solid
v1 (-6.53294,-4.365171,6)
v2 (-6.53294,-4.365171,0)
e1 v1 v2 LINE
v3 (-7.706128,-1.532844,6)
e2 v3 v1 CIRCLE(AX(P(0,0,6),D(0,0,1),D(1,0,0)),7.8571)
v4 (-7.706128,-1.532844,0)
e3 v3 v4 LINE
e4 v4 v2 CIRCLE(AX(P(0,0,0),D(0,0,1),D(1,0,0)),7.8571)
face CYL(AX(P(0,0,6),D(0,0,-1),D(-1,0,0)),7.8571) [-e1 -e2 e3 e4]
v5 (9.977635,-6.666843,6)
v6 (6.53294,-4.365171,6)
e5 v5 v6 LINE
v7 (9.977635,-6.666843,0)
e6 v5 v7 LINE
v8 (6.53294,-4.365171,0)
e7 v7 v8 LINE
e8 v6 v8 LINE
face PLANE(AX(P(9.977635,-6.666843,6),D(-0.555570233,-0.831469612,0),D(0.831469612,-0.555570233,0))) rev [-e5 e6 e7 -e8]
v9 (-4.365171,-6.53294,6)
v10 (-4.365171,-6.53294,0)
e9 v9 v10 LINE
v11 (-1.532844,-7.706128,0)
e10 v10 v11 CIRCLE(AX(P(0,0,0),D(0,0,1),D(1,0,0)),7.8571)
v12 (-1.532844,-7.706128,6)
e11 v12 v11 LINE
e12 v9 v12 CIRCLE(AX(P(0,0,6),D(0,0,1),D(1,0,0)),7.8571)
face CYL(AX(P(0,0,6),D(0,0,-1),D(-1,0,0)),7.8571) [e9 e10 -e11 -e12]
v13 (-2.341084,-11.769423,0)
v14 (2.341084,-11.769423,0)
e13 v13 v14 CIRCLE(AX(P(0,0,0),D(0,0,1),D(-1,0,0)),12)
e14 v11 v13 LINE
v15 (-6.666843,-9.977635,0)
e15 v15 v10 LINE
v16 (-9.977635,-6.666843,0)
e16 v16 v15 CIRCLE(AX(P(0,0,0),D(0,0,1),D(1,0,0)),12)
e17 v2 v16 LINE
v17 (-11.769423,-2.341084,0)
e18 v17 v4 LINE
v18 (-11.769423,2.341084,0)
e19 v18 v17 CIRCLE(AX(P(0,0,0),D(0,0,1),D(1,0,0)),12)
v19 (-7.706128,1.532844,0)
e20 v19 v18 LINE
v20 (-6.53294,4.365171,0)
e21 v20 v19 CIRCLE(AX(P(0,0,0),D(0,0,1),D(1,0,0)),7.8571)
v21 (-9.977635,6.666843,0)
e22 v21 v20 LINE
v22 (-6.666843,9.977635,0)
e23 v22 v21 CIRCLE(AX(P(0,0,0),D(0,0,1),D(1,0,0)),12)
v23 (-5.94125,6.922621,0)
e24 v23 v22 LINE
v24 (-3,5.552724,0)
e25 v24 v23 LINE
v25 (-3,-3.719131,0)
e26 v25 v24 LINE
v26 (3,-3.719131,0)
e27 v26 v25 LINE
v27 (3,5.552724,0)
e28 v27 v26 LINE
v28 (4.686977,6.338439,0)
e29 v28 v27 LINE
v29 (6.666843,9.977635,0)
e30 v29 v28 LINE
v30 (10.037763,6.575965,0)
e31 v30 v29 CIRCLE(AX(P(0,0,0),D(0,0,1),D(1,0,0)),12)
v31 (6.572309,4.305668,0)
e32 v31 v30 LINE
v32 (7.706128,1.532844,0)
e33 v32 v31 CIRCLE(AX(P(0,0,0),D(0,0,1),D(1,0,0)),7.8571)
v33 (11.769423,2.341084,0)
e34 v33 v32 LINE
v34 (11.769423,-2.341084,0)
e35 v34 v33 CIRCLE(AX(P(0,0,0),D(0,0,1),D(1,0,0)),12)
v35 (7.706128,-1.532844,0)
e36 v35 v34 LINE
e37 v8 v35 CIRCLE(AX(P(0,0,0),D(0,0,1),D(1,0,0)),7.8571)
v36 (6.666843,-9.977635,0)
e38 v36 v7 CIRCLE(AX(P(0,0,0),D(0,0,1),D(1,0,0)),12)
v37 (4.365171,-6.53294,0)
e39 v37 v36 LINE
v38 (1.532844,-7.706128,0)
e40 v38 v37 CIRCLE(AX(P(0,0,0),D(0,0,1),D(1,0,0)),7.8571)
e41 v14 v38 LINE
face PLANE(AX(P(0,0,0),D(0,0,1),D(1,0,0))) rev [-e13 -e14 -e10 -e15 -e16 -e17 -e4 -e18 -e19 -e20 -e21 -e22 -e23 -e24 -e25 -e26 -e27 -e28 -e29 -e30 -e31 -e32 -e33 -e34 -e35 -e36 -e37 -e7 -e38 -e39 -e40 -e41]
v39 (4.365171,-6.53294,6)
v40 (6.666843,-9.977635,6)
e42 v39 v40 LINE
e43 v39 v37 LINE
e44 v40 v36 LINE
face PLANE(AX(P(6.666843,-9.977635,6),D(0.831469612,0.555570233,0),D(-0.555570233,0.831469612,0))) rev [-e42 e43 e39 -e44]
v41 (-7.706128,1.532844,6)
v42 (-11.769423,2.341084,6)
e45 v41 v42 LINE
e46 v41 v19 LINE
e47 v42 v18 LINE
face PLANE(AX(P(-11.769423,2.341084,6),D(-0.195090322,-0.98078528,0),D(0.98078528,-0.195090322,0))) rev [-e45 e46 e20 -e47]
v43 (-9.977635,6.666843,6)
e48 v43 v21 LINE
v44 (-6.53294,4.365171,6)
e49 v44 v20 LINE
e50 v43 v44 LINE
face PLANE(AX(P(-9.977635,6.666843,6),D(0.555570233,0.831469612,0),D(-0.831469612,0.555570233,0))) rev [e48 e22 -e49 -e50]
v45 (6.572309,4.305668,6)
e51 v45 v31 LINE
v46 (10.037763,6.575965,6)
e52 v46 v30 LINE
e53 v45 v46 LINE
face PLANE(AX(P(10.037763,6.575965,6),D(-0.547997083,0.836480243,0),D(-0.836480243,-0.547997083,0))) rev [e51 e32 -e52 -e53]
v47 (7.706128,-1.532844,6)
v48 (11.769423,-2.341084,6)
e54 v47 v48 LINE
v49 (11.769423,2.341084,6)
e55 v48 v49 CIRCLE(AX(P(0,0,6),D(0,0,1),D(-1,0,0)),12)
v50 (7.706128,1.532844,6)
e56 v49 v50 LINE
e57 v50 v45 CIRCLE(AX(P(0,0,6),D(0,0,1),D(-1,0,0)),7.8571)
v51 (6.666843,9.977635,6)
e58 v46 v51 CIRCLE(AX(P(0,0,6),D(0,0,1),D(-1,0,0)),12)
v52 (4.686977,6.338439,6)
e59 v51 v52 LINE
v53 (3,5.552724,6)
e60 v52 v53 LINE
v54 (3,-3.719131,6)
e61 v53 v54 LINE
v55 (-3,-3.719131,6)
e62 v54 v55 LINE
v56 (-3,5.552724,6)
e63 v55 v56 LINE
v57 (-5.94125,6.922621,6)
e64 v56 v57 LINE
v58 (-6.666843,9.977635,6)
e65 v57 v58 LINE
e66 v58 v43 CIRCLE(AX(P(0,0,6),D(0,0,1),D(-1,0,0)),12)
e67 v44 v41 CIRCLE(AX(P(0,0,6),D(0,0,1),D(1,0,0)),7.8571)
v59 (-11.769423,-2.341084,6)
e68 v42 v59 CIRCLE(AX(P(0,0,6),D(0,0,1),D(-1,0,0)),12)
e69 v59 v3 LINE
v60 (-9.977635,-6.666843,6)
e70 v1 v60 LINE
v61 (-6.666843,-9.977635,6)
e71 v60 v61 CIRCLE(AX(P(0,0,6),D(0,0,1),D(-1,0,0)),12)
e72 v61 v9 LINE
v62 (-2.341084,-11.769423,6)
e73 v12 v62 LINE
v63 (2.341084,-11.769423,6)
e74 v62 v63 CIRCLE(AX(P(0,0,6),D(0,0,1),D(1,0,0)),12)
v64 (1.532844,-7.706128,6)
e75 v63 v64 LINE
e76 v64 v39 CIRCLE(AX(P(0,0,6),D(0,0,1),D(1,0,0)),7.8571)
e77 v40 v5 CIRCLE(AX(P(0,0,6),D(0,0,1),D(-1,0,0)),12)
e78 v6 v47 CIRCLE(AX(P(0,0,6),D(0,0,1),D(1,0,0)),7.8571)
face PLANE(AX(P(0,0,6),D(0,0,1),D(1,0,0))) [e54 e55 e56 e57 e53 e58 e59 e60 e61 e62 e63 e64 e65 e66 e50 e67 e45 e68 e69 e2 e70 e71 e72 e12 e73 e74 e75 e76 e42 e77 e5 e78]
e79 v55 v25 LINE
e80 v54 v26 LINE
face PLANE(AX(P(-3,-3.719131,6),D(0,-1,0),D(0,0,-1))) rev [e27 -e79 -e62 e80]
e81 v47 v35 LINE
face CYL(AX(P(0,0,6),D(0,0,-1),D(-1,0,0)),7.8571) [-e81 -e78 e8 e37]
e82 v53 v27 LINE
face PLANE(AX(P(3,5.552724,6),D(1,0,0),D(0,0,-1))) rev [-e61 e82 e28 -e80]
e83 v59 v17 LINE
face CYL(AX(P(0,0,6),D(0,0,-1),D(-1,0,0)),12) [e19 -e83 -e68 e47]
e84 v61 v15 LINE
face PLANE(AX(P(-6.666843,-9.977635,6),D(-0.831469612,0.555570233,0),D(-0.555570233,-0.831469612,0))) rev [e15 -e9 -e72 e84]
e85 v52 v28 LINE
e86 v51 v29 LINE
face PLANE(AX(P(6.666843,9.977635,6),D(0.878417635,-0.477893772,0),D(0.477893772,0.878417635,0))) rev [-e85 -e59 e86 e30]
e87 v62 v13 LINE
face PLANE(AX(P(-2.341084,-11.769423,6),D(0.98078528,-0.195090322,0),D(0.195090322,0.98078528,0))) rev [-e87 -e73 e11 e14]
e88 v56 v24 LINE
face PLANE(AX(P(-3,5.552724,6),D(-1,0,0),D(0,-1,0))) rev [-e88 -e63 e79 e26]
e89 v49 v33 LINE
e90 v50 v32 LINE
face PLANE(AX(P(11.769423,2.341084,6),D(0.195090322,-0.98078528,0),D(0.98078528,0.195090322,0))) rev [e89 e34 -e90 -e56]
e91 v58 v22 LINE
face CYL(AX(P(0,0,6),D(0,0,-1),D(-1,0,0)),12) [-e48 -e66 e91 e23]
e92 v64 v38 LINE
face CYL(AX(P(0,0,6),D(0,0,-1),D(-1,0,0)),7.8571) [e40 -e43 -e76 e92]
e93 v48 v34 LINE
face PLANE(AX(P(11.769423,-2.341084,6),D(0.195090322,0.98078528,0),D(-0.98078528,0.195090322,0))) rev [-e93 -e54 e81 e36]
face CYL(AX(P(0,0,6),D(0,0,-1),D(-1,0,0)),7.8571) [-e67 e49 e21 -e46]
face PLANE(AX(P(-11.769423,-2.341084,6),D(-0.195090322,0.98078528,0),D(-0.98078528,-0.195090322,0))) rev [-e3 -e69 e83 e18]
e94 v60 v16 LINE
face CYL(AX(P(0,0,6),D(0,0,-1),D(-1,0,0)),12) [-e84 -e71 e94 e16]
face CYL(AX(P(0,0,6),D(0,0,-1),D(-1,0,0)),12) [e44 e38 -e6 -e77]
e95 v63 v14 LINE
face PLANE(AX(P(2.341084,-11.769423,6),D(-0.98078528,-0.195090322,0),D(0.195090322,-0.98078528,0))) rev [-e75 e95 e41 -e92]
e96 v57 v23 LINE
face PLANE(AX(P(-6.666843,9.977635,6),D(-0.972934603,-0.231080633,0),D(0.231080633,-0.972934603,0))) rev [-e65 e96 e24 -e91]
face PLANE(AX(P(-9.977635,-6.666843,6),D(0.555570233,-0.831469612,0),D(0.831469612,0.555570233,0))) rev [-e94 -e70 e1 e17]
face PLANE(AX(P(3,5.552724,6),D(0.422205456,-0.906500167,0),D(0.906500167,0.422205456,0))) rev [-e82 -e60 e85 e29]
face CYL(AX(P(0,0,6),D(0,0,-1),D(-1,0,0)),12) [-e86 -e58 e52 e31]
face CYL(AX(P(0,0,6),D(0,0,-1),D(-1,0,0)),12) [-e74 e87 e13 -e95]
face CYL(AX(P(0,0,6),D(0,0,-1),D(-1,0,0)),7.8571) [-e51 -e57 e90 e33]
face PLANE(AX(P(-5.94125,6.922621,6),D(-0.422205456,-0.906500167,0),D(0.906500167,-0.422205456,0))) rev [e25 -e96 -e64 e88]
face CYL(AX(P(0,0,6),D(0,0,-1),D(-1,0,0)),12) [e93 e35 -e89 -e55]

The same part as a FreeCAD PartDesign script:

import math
import FreeCAD as App
import Part
import Sketcher

V = App.Vector
Q = App.Units.Quantity

doc = App.newDocument("Part")
body = doc.addObject("PartDesign::Body", "Body")

# Sketch on XY plane
sketch1 = body.newObject("Sketcher::SketchObject", "Sketch")
sketch1.AttachmentSupport = (doc.getObject("XY_Plane"), [""])
sketch1.MapMode = "FlatFace"
sketch1.addGeometry([
    Part.LineSegment(V(3, -3.7, 0), V(-3, -3.7, 0)),  # 0
    Part.LineSegment(V(-3, -3.7, 0), V(-3, 5.6, 0)),  # 1
    Part.LineSegment(V(-3, 5.6, 0), V(-5.9, 6.9, 0)),  # 2
    Part.LineSegment(V(-5.9, 6.9, 0), V(-6.7, 10, 0)),  # 3
    Part.ArcOfCircle(Part.Circle(V(0, 0, 0), V(0, 0, 1), 12), math.radians(123.75), math.radians(135)),  # 4
    Part.ArcOfCircle(Part.Circle(V(0, 0, 0), V(0, 0, 1), 12), math.radians(135), math.radians(146.25)),  # 5
    Part.LineSegment(V(-10, 6.7, 0), V(-6.5, 4.4, 0)),  # 6
    Part.ArcOfCircle(Part.Circle(V(0, 0, 0), V(0, 0, 1), 7.9), math.radians(146), math.radians(169)),  # 7
    Part.LineSegment(V(-7.7, 1.5, 0), V(-11.8, 2.3, 0)),  # 8
    Part.ArcOfCircle(Part.Circle(V(0, 0, 0), V(0, 0, 1), 12), math.radians(168.75), math.radians(180)),  # 9
    Part.ArcOfCircle(Part.Circle(V(0, 0, 0), V(0, 0, 1), 12), math.radians(-180), math.radians(-168.75)),  # 10
    Part.LineSegment(V(-11.8, -2.3, 0), V(-7.7, -1.5, 0)),  # 11
    Part.ArcOfCircle(Part.Circle(V(0, 0, 0), V(0, 0, 1), 7.9), math.radians(-169), math.radians(-146)),  # 12
    Part.LineSegment(V(-6.5, -4.4, 0), V(-10, -6.7, 0)),  # 13
    Part.ArcOfCircle(Part.Circle(V(0, 0, 0), V(0, 0, 1), 12), math.radians(-146.25), math.radians(-135)),  # 14
    Part.ArcOfCircle(Part.Circle(V(0, 0, 0), V(0, 0, 1), 12), math.radians(-135), math.radians(-123.75)),  # 15
    Part.LineSegment(V(-6.7, -10, 0), V(-4.4, -6.5, 0)),  # 16
    Part.ArcOfCircle(Part.Circle(V(0, 0, 0), V(0, 0, 1), 7.9), math.radians(-124), math.radians(-101)),  # 17
    Part.LineSegment(V(-1.5, -7.7, 0), V(-2.3, -11.8, 0)),  # 18
    Part.ArcOfCircle(Part.Circle(V(0, 0, 0), V(0, 0, 1), 12), math.radians(-101.25), math.radians(-90)),  # 19
    Part.ArcOfCircle(Part.Circle(V(0, 0, 0), V(0, 0, 1), 12), math.radians(-90), math.radians(-78.75)),  # 20
    Part.LineSegment(V(2.3, -11.8, 0), V(1.5, -7.7, 0)),  # 21
    Part.ArcOfCircle(Part.Circle(V(0, 0, 0), V(0, 0, 1), 7.9), math.radians(-79), math.radians(-56)),  # 22
    Part.LineSegment(V(4.4, -6.5, 0), V(6.7, -10, 0)),  # 23
    Part.ArcOfCircle(Part.Circle(V(0, 0, 0), V(0, 0, 1), 12), math.radians(-56.25), math.radians(-45)),  # 24
    Part.ArcOfCircle(Part.Circle(V(0, 0, 0), V(0, 0, 1), 12), math.radians(-45), math.radians(-33.75)),  # 25
    Part.LineSegment(V(10, -6.7, 0), V(6.5, -4.4, 0)),  # 26
    Part.ArcOfCircle(Part.Circle(V(0, 0, 0), V(0, 0, 1), 7.9), math.radians(-34), math.radians(-11)),  # 27
    Part.LineSegment(V(7.7, -1.5, 0), V(11.8, -2.3, 0)),  # 28
    Part.ArcOfCircle(Part.Circle(V(0, 0, 0), V(0, 0, 1), 12), math.radians(-11.25), math.radians(0)),  # 29
    Part.ArcOfCircle(Part.Circle(V(0, 0, 0), V(0, 0, 1), 12), math.radians(0), math.radians(11.25)),  # 30
    Part.LineSegment(V(11.8, 2.3, 0), V(7.7, 1.5, 0)),  # 31
    Part.ArcOfCircle(Part.Circle(V(0, 0, 0), V(0, 0, 1), 7.9), math.radians(11.25), math.radians(22.5)),  # 32
    Part.ArcOfCircle(Part.Circle(V(0, 0, 0), V(0, 0, 1), 7.9), math.radians(22.5), math.radians(33.23)),  # 33
    Part.LineSegment(V(6.6, 4.3, 0), V(10, 6.6, 0)),  # 34
    Part.ArcOfCircle(Part.Circle(V(0, 0, 0), V(0, 0, 1), 12), math.radians(33.23), math.radians(42.37)),  # 35
    Part.ArcOfCircle(Part.Circle(V(0, 0, 0), V(0, 0, 1), 12), math.radians(42.37), math.radians(56.25)),  # 36
    Part.LineSegment(V(6.7, 10, 0), V(4.7, 6.3, 0)),  # 37
    Part.LineSegment(V(4.7, 6.3, 0), V(3, 5.6, 0)),  # 38
    Part.LineSegment(V(3, 5.6, 0), V(3, -3.7, 0)),  # 39
], False)
sketch1.addConstraint([
    Sketcher.Constraint("Coincident", 0, 2, 1, 1),
    Sketcher.Constraint("Coincident", 1, 2, 2, 1),
    Sketcher.Constraint("Coincident", 2, 2, 3, 1),
    Sketcher.Constraint("Coincident", 3, 2, 4, 1),
    Sketcher.Constraint("Tangent", 4, 2, 5, 1),
    Sketcher.Constraint("Coincident", 5, 2, 6, 1),
    Sketcher.Constraint("Coincident", 6, 2, 7, 1),
    Sketcher.Constraint("Coincident", 7, 2, 8, 1),
    Sketcher.Constraint("Coincident", 8, 2, 9, 1),
    Sketcher.Constraint("Tangent", 9, 2, 10, 1),
    Sketcher.Constraint("Coincident", 10, 2, 11, 1),
    Sketcher.Constraint("Coincident", 11, 2, 12, 1),
    Sketcher.Constraint("Coincident", 12, 2, 13, 1),
    Sketcher.Constraint("Coincident", 13, 2, 14, 1),
    Sketcher.Constraint("Tangent", 14, 2, 15, 1),
    Sketcher.Constraint("Coincident", 15, 2, 16, 1),
    Sketcher.Constraint("Coincident", 16, 2, 17, 1),
    Sketcher.Constraint("Coincident", 17, 2, 18, 1),
    Sketcher.Constraint("Coincident", 18, 2, 19, 1),
    Sketcher.Constraint("Tangent", 19, 2, 20, 1),
    Sketcher.Constraint("Coincident", 20, 2, 21, 1),
    Sketcher.Constraint("Coincident", 21, 2, 22, 1),
    Sketcher.Constraint("Coincident", 22, 2, 23, 1),
    Sketcher.Constraint("Coincident", 23, 2, 24, 1),
    Sketcher.Constraint("Tangent", 24, 2, 25, 1),
    Sketcher.Constraint("Coincident", 25, 2, 26, 1),
    Sketcher.Constraint("Coincident", 26, 2, 27, 1),
    Sketcher.Constraint("Coincident", 27, 2, 28, 1),
    Sketcher.Constraint("Coincident", 28, 2, 29, 1),
    Sketcher.Constraint("Tangent", 29, 2, 30, 1),
    Sketcher.Constraint("Coincident", 30, 2, 31, 1),
    Sketcher.Constraint("Coincident", 31, 2, 32, 1),
    Sketcher.Constraint("Tangent", 32, 2, 33, 1),
    Sketcher.Constraint("Coincident", 33, 2, 34, 1),
    Sketcher.Constraint("Coincident", 34, 2, 35, 1),
    Sketcher.Constraint("Tangent", 35, 2, 36, 1),
    Sketcher.Constraint("Coincident", 36, 2, 37, 1),
    Sketcher.Constraint("Coincident", 37, 2, 38, 1),
    Sketcher.Constraint("Coincident", 38, 2, 39, 1),
    Sketcher.Constraint("Coincident", 39, 2, 0, 1),
    Sketcher.Constraint("Horizontal", 0),
    Sketcher.Constraint("Vertical", 1),
    Sketcher.Constraint("Vertical", 39),
    Sketcher.Constraint("Coincident", 4, 3, -1, 1),
    Sketcher.Constraint("Coincident", 7, 3, -1, 1),
    Sketcher.Constraint("Coincident", 9, 3, -1, 1),
    Sketcher.Constraint("Coincident", 12, 3, -1, 1),
    Sketcher.Constraint("Coincident", 14, 3, -1, 1),
    Sketcher.Constraint("Coincident", 17, 3, -1, 1),
    Sketcher.Constraint("Coincident", 19, 3, -1, 1),
    Sketcher.Constraint("Coincident", 22, 3, -1, 1),
    Sketcher.Constraint("Coincident", 24, 3, -1, 1),
    Sketcher.Constraint("Coincident", 27, 3, -1, 1),
    Sketcher.Constraint("Coincident", 29, 3, -1, 1),
    Sketcher.Constraint("Coincident", 32, 3, -1, 1),
    Sketcher.Constraint("Coincident", 35, 3, -1, 1),
    Sketcher.Constraint("Equal", 4, 5),
    Sketcher.Constraint("Equal", 5, 9),
    Sketcher.Constraint("Equal", 9, 10),
    Sketcher.Constraint("Equal", 7, 12),
    Sketcher.Constraint("Equal", 10, 14),
    Sketcher.Constraint("Equal", 14, 15),
    Sketcher.Constraint("Equal", 12, 17),
    Sketcher.Constraint("Equal", 15, 19),
    Sketcher.Constraint("Equal", 19, 20),
    Sketcher.Constraint("Equal", 17, 22),
    Sketcher.Constraint("Equal", 20, 24),
    Sketcher.Constraint("Equal", 24, 25),
    Sketcher.Constraint("Equal", 22, 27),
    Sketcher.Constraint("Equal", 25, 29),
    Sketcher.Constraint("Equal", 29, 30),
    Sketcher.Constraint("Equal", 27, 32),
    Sketcher.Constraint("Equal", 32, 33),
    Sketcher.Constraint("Equal", 30, 35),
    Sketcher.Constraint("Equal", 35, 36),
    Sketcher.Constraint("Symmetric", 1, 2, 38, 2, -2),
    Sketcher.Constraint("PointOnObject", 9, 2, -1),
    Sketcher.Constraint("PointOnObject", 19, 2, -2),
    Sketcher.Constraint("PointOnObject", 29, 2, -1),
    Sketcher.Constraint("Perpendicular", 6, 16),
    Sketcher.Constraint("Perpendicular", 8, 18),
    Sketcher.Constraint("Perpendicular", 11, 21),
    Sketcher.Constraint("Perpendicular", 13, 23),
    Sketcher.Constraint("Perpendicular", 16, 26),
    Sketcher.Constraint("Perpendicular", 18, 28),
    Sketcher.Constraint("Perpendicular", 21, 31),
    Sketcher.Constraint("Horizontal", 18, 2, 20, 2),
    Sketcher.Constraint("Horizontal", 17, 2, 21, 2),
    Sketcher.Constraint("Horizontal", 16, 2, 22, 2),
    Sketcher.Constraint("Horizontal", 15, 2, 23, 2),
    Sketcher.Constraint("Horizontal", 14, 2, 24, 2),
    Sketcher.Constraint("Horizontal", 13, 2, 25, 2),
    Sketcher.Constraint("Horizontal", 11, 2, 27, 2),
    Sketcher.Constraint("Horizontal", 8, 2, 30, 2),
    Sketcher.Constraint("Horizontal", 3, 2, 36, 2),
    Sketcher.Constraint("Vertical", 8, 2, 10, 2),
    Sketcher.Constraint("Vertical", 6, 2, 12, 2),
    Sketcher.Constraint("Vertical", 4, 2, 14, 2),
    Sketcher.Constraint("Vertical", 3, 2, 15, 2),
    Sketcher.Constraint("Equal", 34, 37),
    Sketcher.Constraint("Radius", 4, Q("12 mm")),
    Sketcher.Constraint("DistanceX", 0, 2, 0, 1, Q("6 mm")),
    Sketcher.Constraint("Angle", 6, Q("-33.75 deg")),
    Sketcher.Constraint("Angle", 8, Q("168.75 deg")),
    Sketcher.Constraint("Radius", 7, Q("7.8571 mm")),
    Sketcher.Constraint("Distance", 3, Q("3.14 mm")),
    Sketcher.Constraint("DistanceX", -1, 1, 35, 2, Q("8.8657 mm")),
    Sketcher.Constraint("Distance", 2, Q("3.244621 mm")),
    Sketcher.Constraint("DistanceY", 1, 1, 1, 2, Q("9.271855 mm")),
    Sketcher.Constraint("DistanceY", 0, 2, -1, 1, Q("3.719131 mm")),
    Sketcher.Constraint("DistanceX", 2, 2, -1, 1, Q("5.94125 mm")),
    Sketcher.Constraint("DistanceX", 4, 2, -1, 1, Q("8.485281 mm")),
    Sketcher.Constraint("DistanceX", 6, 2, -1, 1, Q("6.53294 mm")),
    Sketcher.Constraint("DistanceX", 7, 2, -1, 1, Q("7.706128 mm")),
    Sketcher.Constraint("DistanceY", 17, 2, -1, 1, Q("7.706128 mm")),
    Sketcher.Constraint("DistanceY", -1, 1, 32, 2, Q("3.006782 mm")),
    Sketcher.Constraint("DistanceX", -1, 1, 33, 2, Q("6.572309 mm")),
    Sketcher.Constraint("DistanceY", -1, 1, 37, 2, Q("6.338439 mm")),
    Sketcher.Constraint("DistanceX", -1, 1, 34, 2, Q("10.037763 mm")),
])
pad1 = body.newObject("PartDesign::Pad", "Pad")
pad1.Profile = sketch1
pad1.Length = 6

doc.recompute()
